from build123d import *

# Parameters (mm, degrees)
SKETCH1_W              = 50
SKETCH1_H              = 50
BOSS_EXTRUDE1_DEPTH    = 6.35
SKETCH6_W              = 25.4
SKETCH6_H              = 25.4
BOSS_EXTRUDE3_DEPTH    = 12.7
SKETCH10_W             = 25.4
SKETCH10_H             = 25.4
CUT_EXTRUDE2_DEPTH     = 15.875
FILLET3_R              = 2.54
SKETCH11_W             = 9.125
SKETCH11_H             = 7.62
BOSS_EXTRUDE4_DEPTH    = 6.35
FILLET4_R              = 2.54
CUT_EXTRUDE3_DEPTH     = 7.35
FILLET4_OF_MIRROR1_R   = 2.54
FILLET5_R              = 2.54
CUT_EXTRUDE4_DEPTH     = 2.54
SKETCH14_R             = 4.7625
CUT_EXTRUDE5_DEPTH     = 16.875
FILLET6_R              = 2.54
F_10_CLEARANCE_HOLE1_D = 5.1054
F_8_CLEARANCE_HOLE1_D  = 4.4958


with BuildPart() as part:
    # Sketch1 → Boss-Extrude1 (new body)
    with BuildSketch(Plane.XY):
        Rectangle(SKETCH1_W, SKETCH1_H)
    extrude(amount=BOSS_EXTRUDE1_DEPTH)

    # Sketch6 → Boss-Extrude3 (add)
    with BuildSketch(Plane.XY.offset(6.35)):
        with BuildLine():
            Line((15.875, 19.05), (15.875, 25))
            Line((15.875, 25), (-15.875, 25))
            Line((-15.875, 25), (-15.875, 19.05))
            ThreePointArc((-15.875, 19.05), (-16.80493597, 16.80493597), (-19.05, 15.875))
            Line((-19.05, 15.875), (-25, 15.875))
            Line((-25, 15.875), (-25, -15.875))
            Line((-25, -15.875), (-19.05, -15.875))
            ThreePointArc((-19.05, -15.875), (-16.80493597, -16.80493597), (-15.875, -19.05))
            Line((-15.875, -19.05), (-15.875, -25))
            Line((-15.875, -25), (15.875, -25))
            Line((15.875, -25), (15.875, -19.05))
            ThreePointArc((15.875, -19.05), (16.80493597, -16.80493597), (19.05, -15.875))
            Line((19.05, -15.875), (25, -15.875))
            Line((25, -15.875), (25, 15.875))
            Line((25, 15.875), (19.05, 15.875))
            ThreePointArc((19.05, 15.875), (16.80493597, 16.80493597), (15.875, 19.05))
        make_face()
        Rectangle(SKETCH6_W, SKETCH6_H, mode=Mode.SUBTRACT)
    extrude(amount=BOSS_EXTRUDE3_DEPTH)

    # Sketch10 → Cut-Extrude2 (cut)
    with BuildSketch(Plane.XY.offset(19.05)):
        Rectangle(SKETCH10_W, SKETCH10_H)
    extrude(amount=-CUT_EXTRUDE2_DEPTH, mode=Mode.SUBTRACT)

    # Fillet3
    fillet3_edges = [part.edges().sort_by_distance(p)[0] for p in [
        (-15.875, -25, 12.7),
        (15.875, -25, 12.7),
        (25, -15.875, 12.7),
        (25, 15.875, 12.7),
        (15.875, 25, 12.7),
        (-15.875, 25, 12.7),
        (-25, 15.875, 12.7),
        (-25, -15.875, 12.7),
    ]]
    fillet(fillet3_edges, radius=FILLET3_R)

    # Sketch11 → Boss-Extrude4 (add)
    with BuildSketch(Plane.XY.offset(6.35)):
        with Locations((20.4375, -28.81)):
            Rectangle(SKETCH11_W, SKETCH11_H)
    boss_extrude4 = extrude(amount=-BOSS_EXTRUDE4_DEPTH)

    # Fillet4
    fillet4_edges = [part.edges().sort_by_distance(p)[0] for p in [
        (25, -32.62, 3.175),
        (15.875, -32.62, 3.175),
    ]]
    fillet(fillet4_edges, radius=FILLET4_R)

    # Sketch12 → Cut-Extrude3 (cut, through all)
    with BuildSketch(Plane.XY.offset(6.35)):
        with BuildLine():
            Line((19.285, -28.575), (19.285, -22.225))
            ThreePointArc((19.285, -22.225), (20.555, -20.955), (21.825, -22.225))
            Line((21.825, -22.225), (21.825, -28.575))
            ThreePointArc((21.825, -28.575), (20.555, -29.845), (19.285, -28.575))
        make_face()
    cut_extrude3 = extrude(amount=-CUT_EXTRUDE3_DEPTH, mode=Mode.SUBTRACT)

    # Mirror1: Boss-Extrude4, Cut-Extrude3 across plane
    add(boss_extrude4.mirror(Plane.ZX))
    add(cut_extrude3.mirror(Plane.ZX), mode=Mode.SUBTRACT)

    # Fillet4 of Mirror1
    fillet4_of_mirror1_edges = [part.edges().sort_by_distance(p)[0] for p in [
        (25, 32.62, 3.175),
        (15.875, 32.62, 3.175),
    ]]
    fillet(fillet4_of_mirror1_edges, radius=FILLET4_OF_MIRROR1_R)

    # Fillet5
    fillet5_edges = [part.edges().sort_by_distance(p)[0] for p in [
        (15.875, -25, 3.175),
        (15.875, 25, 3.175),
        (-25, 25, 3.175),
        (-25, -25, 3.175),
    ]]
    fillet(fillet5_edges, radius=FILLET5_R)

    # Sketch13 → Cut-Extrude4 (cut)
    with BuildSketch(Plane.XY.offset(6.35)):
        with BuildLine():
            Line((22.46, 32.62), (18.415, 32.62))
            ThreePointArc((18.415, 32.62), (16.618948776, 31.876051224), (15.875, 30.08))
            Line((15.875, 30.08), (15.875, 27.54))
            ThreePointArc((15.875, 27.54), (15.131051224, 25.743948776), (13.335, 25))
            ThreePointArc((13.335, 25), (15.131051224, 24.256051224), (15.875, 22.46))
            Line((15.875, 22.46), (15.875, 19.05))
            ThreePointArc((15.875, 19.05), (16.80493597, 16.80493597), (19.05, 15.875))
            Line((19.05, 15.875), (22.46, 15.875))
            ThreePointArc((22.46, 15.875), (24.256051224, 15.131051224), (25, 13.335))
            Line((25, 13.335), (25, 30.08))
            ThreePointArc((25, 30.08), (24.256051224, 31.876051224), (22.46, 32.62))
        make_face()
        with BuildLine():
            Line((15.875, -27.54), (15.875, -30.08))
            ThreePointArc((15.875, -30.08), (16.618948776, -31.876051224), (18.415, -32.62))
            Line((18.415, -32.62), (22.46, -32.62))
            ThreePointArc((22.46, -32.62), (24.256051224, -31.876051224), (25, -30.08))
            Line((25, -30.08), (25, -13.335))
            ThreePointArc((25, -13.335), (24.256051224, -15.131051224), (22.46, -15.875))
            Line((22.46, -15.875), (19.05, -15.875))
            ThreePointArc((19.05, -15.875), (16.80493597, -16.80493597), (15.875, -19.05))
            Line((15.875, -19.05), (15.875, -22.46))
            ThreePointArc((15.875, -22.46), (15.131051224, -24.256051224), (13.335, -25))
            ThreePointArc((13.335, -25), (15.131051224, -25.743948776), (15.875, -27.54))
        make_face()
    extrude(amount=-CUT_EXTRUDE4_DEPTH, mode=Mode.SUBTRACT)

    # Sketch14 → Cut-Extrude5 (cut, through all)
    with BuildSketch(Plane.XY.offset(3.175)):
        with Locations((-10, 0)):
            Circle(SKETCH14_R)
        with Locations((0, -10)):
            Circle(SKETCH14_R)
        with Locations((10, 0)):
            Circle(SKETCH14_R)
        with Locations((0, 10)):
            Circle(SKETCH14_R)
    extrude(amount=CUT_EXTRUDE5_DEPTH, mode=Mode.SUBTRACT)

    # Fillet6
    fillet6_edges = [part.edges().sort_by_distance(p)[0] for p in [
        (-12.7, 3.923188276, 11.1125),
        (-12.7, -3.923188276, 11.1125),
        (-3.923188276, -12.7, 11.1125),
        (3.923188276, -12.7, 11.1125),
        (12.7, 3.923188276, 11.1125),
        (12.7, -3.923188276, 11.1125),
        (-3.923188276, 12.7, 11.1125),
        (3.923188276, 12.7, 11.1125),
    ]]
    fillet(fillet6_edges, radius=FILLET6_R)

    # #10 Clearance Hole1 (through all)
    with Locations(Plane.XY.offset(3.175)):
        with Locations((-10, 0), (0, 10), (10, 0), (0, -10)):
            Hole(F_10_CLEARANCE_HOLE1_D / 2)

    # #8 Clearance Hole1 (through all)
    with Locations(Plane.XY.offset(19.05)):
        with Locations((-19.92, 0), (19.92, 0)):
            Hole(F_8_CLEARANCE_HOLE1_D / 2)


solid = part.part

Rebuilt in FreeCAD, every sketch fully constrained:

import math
import FreeCAD as App
import Part
import Sketcher
Q = App.Units.Quantity


def edges_at(feature, points):
    """Names of the edges that pass closest to the given points."""
    edges = feature.Shape.Edges
    near = lambda p: min(range(len(edges)), key=lambda i: edges[i].distToShape(Part.Vertex(*p))[0])
    return sorted({f"Edge{near(p) + 1}" for p in points})


def add_polygon(sketch, points):
    """Adds a closed chain of lines whose ends are joined by coincident constraints."""
    first, n = sketch.GeometryCount, len(points)
    for a, b in zip(points, points[1:] + points[:1]):
        sketch.addGeometry(Part.LineSegment(App.Vector(*a, 0), App.Vector(*b, 0)), False)
    for i in range(n):
        sketch.addConstraint(Sketcher.Constraint("Coincident", first + i, 2, first + (i + 1) % n, 1))

doc = App.newDocument("Part")
body = doc.addObject("PartDesign::Body", "Body")

# Sketch on XY plane
sketch1 = body.newObject("Sketcher::SketchObject", "Sketch")
sketch1.AttachmentSupport = (doc.getObject("XY_Plane"), [""])
sketch1.MapMode = "FlatFace"
add_polygon(sketch1, [(-25, 25), (-25, -25), (25, -25), (25, 25)])  # lines 0-3
sketch1.addConstraint([
    Sketcher.Constraint("Vertical", 0),
    Sketcher.Constraint("Horizontal", 1),
    Sketcher.Constraint("Vertical", 2),
    Sketcher.Constraint("Horizontal", 3),
    Sketcher.Constraint("Symmetric", 0, 2, 2, 2, -1, 1),
    Sketcher.Constraint("Equal", 3, 0),
    Sketcher.Constraint("DistanceX", 1, 1, 1, 2, Q("50 mm")),
])
pad1 = body.newObject("PartDesign::Pad", "Pad")
pad1.Profile = sketch1
pad1.Length = Q("0.25 in")

# Sketch on XY plane
sketch2 = body.newObject("Sketcher::SketchObject", "Sketch001")
sketch2.AttachmentSupport = (doc.getObject("XY_Plane"), [""])
sketch2.MapMode = "FlatFace"
sketch2.AttachmentOffset = App.Placement(App.Vector(0, 0, 0.25 * 25.4), App.Rotation())
sketch2.addGeometry(Part.LineSegment(App.Vector(15.9, 19.1, 0), App.Vector(15.9, 25, 0)), False)  # 0
sketch2.addGeometry(Part.LineSegment(App.Vector(15.9, 25, 0), App.Vector(-15.9, 25, 0)), False)  # 1
sketch2.addGeometry(Part.LineSegment(App.Vector(-15.9, 25, 0), App.Vector(-15.9, 19.1, 0)), False)  # 2
sketch2.addGeometry(Part.ArcOfCircle(Part.Circle(App.Vector(-19.1, 19.1, 0), App.Vector(0, 0, 1), 3.2), math.radians(-90), math.radians(0)), False)  # 3
sketch2.addGeometry(Part.LineSegment(App.Vector(-19.1, 15.9, 0), App.Vector(-25, 15.9, 0)), False)  # 4
sketch2.addGeometry(Part.LineSegment(App.Vector(-25, 15.9, 0), App.Vector(-25, -15.9, 0)), False)  # 5
sketch2.addGeometry(Part.LineSegment(App.Vector(-25, -15.9, 0), App.Vector(-19.1, -15.9, 0)), False)  # 6
sketch2.addGeometry(Part.ArcOfCircle(Part.Circle(App.Vector(-19.1, -19.1, 0), App.Vector(0, 0, 1), 3.2), math.radians(0), math.radians(90)), False)  # 7
sketch2.addGeometry(Part.LineSegment(App.Vector(-15.9, -19.1, 0), App.Vector(-15.9, -25, 0)), False)  # 8
sketch2.addGeometry(Part.LineSegment(App.Vector(-15.9, -25, 0), App.Vector(15.9, -25, 0)), False)  # 9
sketch2.addGeometry(Part.LineSegment(App.Vector(15.9, -25, 0), App.Vector(15.9, -19.1, 0)), False)  # 10
sketch2.addGeometry(Part.ArcOfCircle(Part.Circle(App.Vector(19.1, -19.1, 0), App.Vector(0, 0, 1), 3.2), math.radians(90), math.radians(180)), False)  # 11
sketch2.addGeometry(Part.LineSegment(App.Vector(19.1, -15.9, 0), App.Vector(25, -15.9, 0)), False)  # 12
sketch2.addGeometry(Part.LineSegment(App.Vector(25, -15.9, 0), App.Vector(25, 15.9, 0)), False)  # 13
sketch2.addGeometry(Part.LineSegment(App.Vector(25, 15.9, 0), App.Vector(19.1, 15.9, 0)), False)  # 14
sketch2.addGeometry(Part.ArcOfCircle(Part.Circle(App.Vector(19.1, 19.1, 0), App.Vector(0, 0, 1), 3.2), math.radians(-180), math.radians(-90)), False)  # 15
add_polygon(sketch2, [(12.7, -12.7), (-12.7, -12.7), (-12.7, 12.7), (12.7, 12.7)])  # lines 16-19
sketch2.addConstraint([
    Sketcher.Constraint("Coincident", 0, 2, 1, 1),
    Sketcher.Constraint("Coincident", 1, 2, 2, 1),
    Sketcher.Constraint("Tangent", 2, 2, 3, 2),
    Sketcher.Constraint("Tangent", 3, 1, 4, 1),
    Sketcher.Constraint("Coincident", 4, 2, 5, 1),
    Sketcher.Constraint("Coincident", 5, 2, 6, 1),
    Sketcher.Constraint("Tangent", 6, 2, 7, 2),
    Sketcher.Constraint("Tangent", 7, 1, 8, 1),
    Sketcher.Constraint("Coincident", 8, 2, 9, 1),
    Sketcher.Constraint("Coincident", 9, 2, 10, 1),
    Sketcher.Constraint("Tangent", 10, 2, 11, 2),
    Sketcher.Constraint("Tangent", 11, 1, 12, 1),
    Sketcher.Constraint("Coincident", 12, 2, 13, 1),
    Sketcher.Constraint("Coincident", 13, 2, 14, 1),
    Sketcher.Constraint("Tangent", 14, 2, 15, 2),
    Sketcher.Constraint("Tangent", 15, 1, 0, 1),
    Sketcher.Constraint("Vertical", 0),
    Sketcher.Constraint("Horizontal", 1),
    Sketcher.Constraint("Vertical", 2),
    Sketcher.Constraint("Horizontal", 4),
    Sketcher.Constraint("Vertical", 5),
    Sketcher.Constraint("Horizontal", 6),
    Sketcher.Constraint("Vertical", 8),
    Sketcher.Constraint("Horizontal", 9),
    Sketcher.Constraint("Vertical", 10),
    Sketcher.Constraint("Horizontal", 12),
    Sketcher.Constraint("Vertical", 13),
    Sketcher.Constraint("Horizontal", 14),
    Sketcher.Constraint("Horizontal", 16),
    Sketcher.Constraint("Vertical", 17),
    Sketcher.Constraint("Horizontal", 18),
    Sketcher.Constraint("Vertical", 19),
    Sketcher.Constraint("Equal", 3, 7),
    Sketcher.Constraint("Equal", 7, 11),
    Sketcher.Constraint("Equal", 11, 15),
    Sketcher.Constraint("Symmetric", 3, 3, 11, 3, -1, 1),
    Sketcher.Constraint("Symmetric", 7, 3, 15, 3, -1, 1),
    Sketcher.Constraint("Symmetric", 16, 2, 18, 2, -1, 1),
    Sketcher.Constraint("Symmetric", 7, 3, 11, 3, -2),
    Sketcher.Constraint("Equal", 6, 12),
    Sketcher.Constraint("Equal", 14, 0),
    Sketcher.Constraint("Equal", 9, 5),
    Sketcher.Constraint("Equal", 2, 8),
    Sketcher.Constraint("Equal", 18, 17),
    Sketcher.Constraint("DistanceX", 16, 2, 16, 1, Q("1 in")),
    Sketcher.Constraint("Radius", 3, Q("0.125 in")),
    Sketcher.Constraint("DistanceX", 1, 2, 1, 1, Q("1.25 in")),
    Sketcher.Constraint("DistanceX", 4, 2, 4, 1, Q("5.95 mm")),
])
pad2 = body.newObject("PartDesign::Pad", "Pad001")
pad2.Profile = sketch2
pad2.Length = Q("0.5 in")

# Sketch on XY plane
sketch3 = body.newObject("Sketcher::SketchObject", "Sketch002")
sketch3.AttachmentSupport = (doc.getObject("XY_Plane"), [""])
sketch3.MapMode = "FlatFace"
sketch3.AttachmentOffset = App.Placement(App.Vector(0, 0, 0.75 * 25.4), App.Rotation())
add_polygon(sketch3, [(-13, 13), (-13, -13), (13, -13), (13, 13)])  # lines 0-3
sketch3.addConstraint([
    Sketcher.Constraint("Vertical", 0),
    Sketcher.Constraint("Horizontal", 1),
    Sketcher.Constraint("Vertical", 2),
    Sketcher.Constraint("Horizontal", 3),
    Sketcher.Constraint("Symmetric", 0, 2, 2, 2, -1, 1),
    Sketcher.Constraint("Equal", 3, 0),
    Sketcher.Constraint("DistanceX", 1, 1, 1, 2, Q("1 in")),
])
pocket1 = body.newObject("PartDesign::Pocket", "Pocket")
pocket1.Profile = sketch3
pocket1.Length = Q("0.625 in")
doc.recompute()

fillet = body.newObject("PartDesign::Fillet", "Fillet")
fillet.Base = (pocket1, edges_at(pocket1, [
    (-15.875, -25, 12.7),
    (15.875, -25, 12.7),
    (25, -15.875, 12.7),
    (25, 15.875, 12.7),
    (15.875, 25, 12.7),
    (-15.875, 25, 12.7),
    (-25, 15.875, 12.7),
    (-25, -15.875, 12.7),
]))
fillet.Radius = Q("0.1 in")

# Sketch on XY plane
sketch4 = body.newObject("Sketcher::SketchObject", "Sketch003")
sketch4.AttachmentSupport = (doc.getObject("XY_Plane"), [""])
sketch4.MapMode = "FlatFace"
sketch4.AttachmentOffset = App.Placement(App.Vector(0, 0, 0.25 * 25.4), App.Rotation())
add_polygon(sketch4, [(16, -25), (16, -33), (25, -33), (25, -25)])  # lines 0-3
sketch4.addConstraint([
    Sketcher.Constraint("Vertical", 0),
    Sketcher.Constraint("Horizontal", 1),
    Sketcher.Constraint("Vertical", 2),
    Sketcher.Constraint("Horizontal", 3),
    Sketcher.Constraint("DistanceY", 0, 2, 0, 1, Q("0.3 in")),
    Sketcher.Constraint("DistanceX", -1, 1, 0, 2, Q("0.625 in")),
    Sketcher.Constraint("DistanceX", 1, 1, 1, 2, Q("9.125 mm")),
    Sketcher.Constraint("DistanceY", 0, 2, -1, 1, Q("32.62 mm")),
])
pad3 = body.newObject("PartDesign::Pad", "Pad002")
pad3.Profile = sketch4
pad3.Length = Q("0.25 in")
pad3.Reversed = True
doc.recompute()

fillet2 = body.newObject("PartDesign::Fillet", "Fillet001")
fillet2.Base = (pad3, edges_at(pad3, [(25, -32.62, 3.175), (15.875, -32.62, 3.175)]))
fillet2.Radius = Q("0.1 in")

# Sketch on XY plane
sketch5 = body.newObject("Sketcher::SketchObject", "Sketch004")
sketch5.AttachmentSupport = (doc.getObject("XY_Plane"), [""])
sketch5.MapMode = "FlatFace"
sketch5.AttachmentOffset = App.Placement(App.Vector(0, 0, 0.25 * 25.4), App.Rotation())
sketch5.addGeometry([
    Part.LineSegment(App.Vector(19.3, -22.2, 0), App.Vector(19.3, -28.6, 0)),
    Part.ArcOfCircle(Part.Circle(App.Vector(20.6, -28.6, 0), App.Vector(0, 0, 1), 1.3), math.radians(180), math.radians(360)),
    Part.LineSegment(App.Vector(21.8, -28.6, 0), App.Vector(21.8, -22.2, 0)),
    Part.ArcOfCircle(Part.Circle(App.Vector(20.6, -22.2, 0), App.Vector(0, 0, 1), 1.3), math.radians(0), math.radians(180)),
], False)
sketch5.addConstraint([
    Sketcher.Constraint("Tangent", 0, 2, 1, 1),
    Sketcher.Constraint("Tangent", 1, 2, 2, 1),
    Sketcher.Constraint("Tangent", 2, 2, 3, 1),
    Sketcher.Constraint("Tangent", 3, 2, 0, 1),
    Sketcher.Constraint("Vertical", 0),
    Sketcher.Constraint("Vertical", 2),
    Sketcher.Constraint("Radius", 1, Q("0.05 in")),
    Sketcher.Constraint("DistanceY", 0, 2, 0, 1, Q("0.25 in")),
    Sketcher.Constraint("DistanceY", 1, 3, -1, 1, Q("1.125 in")),
    Sketcher.Constraint("DistanceX", -1, 1, 1, 3, Q("20.555 mm")),
])
pocket2 = body.newObject("PartDesign::Pocket", "Pocket001")
pocket2.Profile = sketch5
pocket2.Type = "ThroughAll"
doc.recompute()

mirrored = body.newObject("PartDesign::Mirrored", "Mirrored")
mirrored.Originals = [pad3, pocket2]
mirrored.MirrorPlane = (doc.getObject("XZ_Plane"), [""])
body.Tip = mirrored
doc.recompute()

fillet3 = body.newObject("PartDesign::Fillet", "Fillet002")
fillet3.Base = (mirrored, edges_at(mirrored, [(25, 32.62, 3.175), (15.875, 32.62, 3.175)]))
fillet3.Radius = Q("0.1 in")
doc.recompute()

fillet4 = body.newObject("PartDesign::Fillet", "Fillet003")
fillet4.Base = (fillet3, edges_at(fillet3, [
    (15.875, -25, 3.175),
    (15.875, 25, 3.175),
    (-25, 25, 3.175),
    (-25, -25, 3.175),
]))
fillet4.Radius = Q("0.1 in")

# Sketch on XY plane
sketch6 = body.newObject("Sketcher::SketchObject", "Sketch005")
sketch6.AttachmentSupport = (doc.getObject("XY_Plane"), [""])
sketch6.MapMode = "FlatFace"
sketch6.AttachmentOffset = App.Placement(App.Vector(0, 0, 0.25 * 25.4), App.Rotation())
sketch6.addGeometry([
    Part.LineSegment(App.Vector(22.5, 32.6, 0), App.Vector(18.4, 32.6, 0)),  # 0
    Part.ArcOfCircle(Part.Circle(App.Vector(18.4, 30.1, 0), App.Vector(0, 0, 1), 2.5), math.radians(90), math.radians(180)),  # 1
    Part.LineSegment(App.Vector(15.9, 30.1, 0), App.Vector(15.9, 27.5, 0)),  # 2
    Part.ArcOfCircle(Part.Circle(App.Vector(13.3, 27.5, 0), App.Vector(0, 0, 1), 2.5), math.radians(-90), math.radians(0)),  # 3
    Part.ArcOfCircle(Part.Circle(App.Vector(13.3, 22.5, 0), App.Vector(0, 0, 1), 2.5), math.radians(0), math.radians(90)),  # 4
    Part.LineSegment(App.Vector(15.9, 22.5, 0), App.Vector(15.9, 19.1, 0)),  # 5
    Part.ArcOfCircle(Part.Circle(App.Vector(19.1, 19.1, 0), App.Vector(0, 0, 1), 3.2), math.radians(-180), math.radians(-90)),  # 6
    Part.LineSegment(App.Vector(19.1, 15.9, 0), App.Vector(22.5, 15.9, 0)),  # 7
    Part.ArcOfCircle(Part.Circle(App.Vector(22.5, 13.3, 0), App.Vector(0, 0, 1), 2.5), math.radians(0), math.radians(90)),  # 8
    Part.LineSegment(App.Vector(25, 13.3, 0), App.Vector(25, 30.1, 0)),  # 9
    Part.ArcOfCircle(Part.Circle(App.Vector(22.5, 30.1, 0), App.Vector(0, 0, 1), 2.5), math.radians(0), math.radians(90)),  # 10
    Part.LineSegment(App.Vector(15.9, -27.5, 0), App.Vector(15.9, -30.1, 0)),  # 11
    Part.ArcOfCircle(Part.Circle(App.Vector(18.4, -30.1, 0), App.Vector(0, 0, 1), 2.5), math.radians(-180), math.radians(-90)),  # 12
    Part.LineSegment(App.Vector(18.4, -32.6, 0), App.Vector(22.5, -32.6, 0)),  # 13
    Part.ArcOfCircle(Part.Circle(App.Vector(22.5, -30.1, 0), App.Vector(0, 0, 1), 2.5), math.radians(-90), math.radians(0)),  # 14
    Part.LineSegment(App.Vector(25, -30.1, 0), App.Vector(25, -13.3, 0)),  # 15
    Part.ArcOfCircle(Part.Circle(App.Vector(22.5, -13.3, 0), App.Vector(0, 0, 1), 2.5), math.radians(-90), math.radians(0)),  # 16
    Part.LineSegment(App.Vector(22.5, -15.9, 0), App.Vector(19.1, -15.9, 0)),  # 17
    Part.ArcOfCircle(Part.Circle(App.Vector(19.1, -19.1, 0), App.Vector(0, 0, 1), 3.2), math.radians(90), math.radians(180)),  # 18
    Part.LineSegment(App.Vector(15.9, -19.1, 0), App.Vector(15.9, -22.5, 0)),  # 19
    Part.ArcOfCircle(Part.Circle(App.Vector(13.3, -22.5, 0), App.Vector(0, 0, 1), 2.5), math.radians(-90), math.radians(0)),  # 20
    Part.ArcOfCircle(Part.Circle(App.Vector(13.3, -27.5, 0), App.Vector(0, 0, 1), 2.5), math.radians(0), math.radians(90)),  # 21
], False)
sketch6.addConstraint([
    Sketcher.Constraint("Tangent", 0, 2, 1, 1),
    Sketcher.Constraint("Tangent", 1, 2, 2, 1),
    Sketcher.Constraint("Tangent", 2, 2, 3, 2),
    Sketcher.Constraint("Tangent", 3, 1, 4, 2),
    Sketcher.Constraint("Tangent", 4, 1, 5, 1),
    Sketcher.Constraint("Tangent", 5, 2, 6, 1),
    Sketcher.Constraint("Tangent", 6, 2, 7, 1),
    Sketcher.Constraint("Tangent", 7, 2, 8, 2),
    Sketcher.Constraint("Tangent", 8, 1, 9, 1),
    Sketcher.Constraint("Tangent", 9, 2, 10, 1),
    Sketcher.Constraint("Tangent", 10, 2, 0, 1),
    Sketcher.Constraint("Tangent", 11, 2, 12, 1),
    Sketcher.Constraint("Tangent", 12, 2, 13, 1),
    Sketcher.Constraint("Tangent", 13, 2, 14, 1),
    Sketcher.Constraint("Tangent", 14, 2, 15, 1),
    Sketcher.Constraint("Tangent", 15, 2, 16, 2),
    Sketcher.Constraint("Tangent", 16, 1, 17, 1),
    Sketcher.Constraint("Tangent", 17, 2, 18, 1),
    Sketcher.Constraint("Tangent", 18, 2, 19, 1),
    Sketcher.Constraint("Tangent", 19, 2, 20, 2),
    Sketcher.Constraint("Tangent", 20, 1, 21, 2),
    Sketcher.Constraint("Tangent", 21, 1, 11, 1),
    Sketcher.Constraint("Horizontal", 0),
    Sketcher.Constraint("Vertical", 2),
    Sketcher.Constraint("Vertical", 5),
    Sketcher.Constraint("Horizontal", 7),
    Sketcher.Constraint("Vertical", 9),
    Sketcher.Constraint("Vertical", 11),
    Sketcher.Constraint("Horizontal", 13),
    Sketcher.Constraint("Vertical", 15),
    Sketcher.Constraint("Horizontal", 17),
    Sketcher.Constraint("Vertical", 19),
    Sketcher.Constraint("Equal", 1, 3),
    Sketcher.Constraint("Equal", 3, 4),
    Sketcher.Constraint("Equal", 4, 8),
    Sketcher.Constraint("Equal", 8, 10),
    Sketcher.Constraint("Equal", 10, 12),
    Sketcher.Constraint("Equal", 12, 14),
    Sketcher.Constraint("Equal", 14, 16),
    Sketcher.Constraint("Equal", 6, 18),
    Sketcher.Constraint("Equal", 16, 20),
    Sketcher.Constraint("Equal", 20, 21),
    Sketcher.Constraint("Symmetric", 1, 3, 12, 3, -1),
    Sketcher.Constraint("Symmetric", 8, 3, 16, 3, -1),
    Sketcher.Constraint("Symmetric", 4, 3, 20, 3, -1),
    Sketcher.Constraint("Vertical", 3, 3, 4, 3),
    Sketcher.Constraint("Equal", 17, 5),
    Sketcher.Constraint("Radius", 1, Q("0.1 in")),
    Sketcher.Constraint("DistanceY", 2, 2, 2, 1, Q("0.1 in")),
    Sketcher.Constraint("Radius", 6, Q("0.125 in")),
    Sketcher.Constraint("DistanceY", 18, 3, 6, 3, Q("1.5 in")),
    Sketcher.Constraint("DistanceX", -1, 1, 6, 3, Q("0.75 in")),
    Sketcher.Constraint("DistanceX", 0, 2, 0, 1, Q("4.045 mm")),
])
pocket3 = body.newObject("PartDesign::Pocket", "Pocket002")
pocket3.Profile = sketch6
pocket3.Length = Q("0.1 in")

# Sketch on XY plane
sketch7 = body.newObject("Sketcher::SketchObject", "Sketch006")
sketch7.AttachmentSupport = (doc.getObject("XY_Plane"), [""])
sketch7.MapMode = "FlatFace"
sketch7.AttachmentOffset = App.Placement(App.Vector(0, 0, 0.125 * 25.4), App.Rotation())
sketch7.addGeometry([
    Part.Circle(App.Vector(-10, 0, 0), App.Vector(0, 0, 1), 4.8),
    Part.Circle(App.Vector(0, -10, 0), App.Vector(0, 0, 1), 4.8),
    Part.Circle(App.Vector(10, 0, 0), App.Vector(0, 0, 1), 4.8),
    Part.Circle(App.Vector(0, 10, 0), App.Vector(0, 0, 1), 4.8),
], False)
sketch7.addConstraint([
    Sketcher.Constraint("Equal", 0, 1),
    Sketcher.Constraint("Equal", 1, 2),
    Sketcher.Constraint("Equal", 2, 3),
    Sketcher.Constraint("Symmetric", 0, 3, 2, 3, -1, 1),
    Sketcher.Constraint("Symmetric", 1, 3, 3, 3, -1, 1),
    Sketcher.Constraint("PointOnObject", 0, 3, -1),
    Sketcher.Constraint("PointOnObject", 1, 3, -2),
    Sketcher.Constraint("Diameter", 0, Q("0.375 in")),
    Sketcher.Constraint("DistanceX", 0, 3, -1, 1, Q("10 mm")),
    Sketcher.Constraint("DistanceY", 1, 3, -1, 1, Q("10 mm")),
])
pocket4 = body.newObject("PartDesign::Pocket", "Pocket003")
pocket4.Profile = sketch7
pocket4.Type = "ThroughAll"
pocket4.Reversed = True
doc.recompute()

fillet5 = body.newObject("PartDesign::Fillet", "Fillet004")
fillet5.Base = (pocket4, edges_at(pocket4, [
    (-12.7, 3.923, 11.113),
    (-12.7, -3.923, 11.113),
    (-3.923, -12.7, 11.113),
    (3.923, -12.7, 11.113),
    (12.7, 3.923, 11.113),
    (12.7, -3.923, 11.113),
    (-3.923, 12.7, 11.113),
    (3.923, 12.7, 11.113),
]))
fillet5.Radius = Q("0.1 in")

# Sketch on XY plane
sketch8 = body.newObject("Sketcher::SketchObject", "Sketch007")
sketch8.AttachmentSupport = (doc.getObject("XY_Plane"), [""])
sketch8.MapMode = "FlatFace"
sketch8.AttachmentOffset = App.Placement(App.Vector(0, 0, 0.125 * 25.4), App.Rotation())
sketch8.addGeometry([
    Part.Circle(App.Vector(-10, 0, 0), App.Vector(0, 0, 1), 2.6),
    Part.Circle(App.Vector(0, 10, 0), App.Vector(0, 0, 1), 2.6),
    Part.Circle(App.Vector(10, 0, 0), App.Vector(0, 0, 1), 2.6),
    Part.Circle(App.Vector(0, -10, 0), App.Vector(0, 0, 1), 2.6),
], False)
sketch8.addConstraint([
    Sketcher.Constraint("Equal", 0, 1),
    Sketcher.Constraint("Equal", 1, 2),
    Sketcher.Constraint("Equal", 2, 3),
    Sketcher.Constraint("Symmetric", 0, 3, 2, 3, -1, 1),
    Sketcher.Constraint("Symmetric", 1, 3, 3, 3, -1, 1),
    Sketcher.Constraint("PointOnObject", 0, 3, -1),
    Sketcher.Constraint("PointOnObject", 1, 3, -2),
    Sketcher.Constraint("Diameter", 0, Q("0.201 in")),
    Sketcher.Constraint("DistanceX", 0, 3, -1, 1, Q("10 mm")),
    Sketcher.Constraint("DistanceY", -1, 1, 1, 3, Q("10 mm")),
])
doc.recompute()
hole = body.newObject("PartDesign::Hole", "Hole")
hole.Profile = sketch8
hole.ThreadType = "None"
hole.Diameter = Q("0.201 in")
hole.DepthType = "ThroughAll"

# Sketch on XY plane
sketch9 = body.newObject("Sketcher::SketchObject", "Sketch008")
sketch9.AttachmentSupport = (doc.getObject("XY_Plane"), [""])
sketch9.MapMode = "FlatFace"
sketch9.AttachmentOffset = App.Placement(App.Vector(0, 0, 0.75 * 25.4), App.Rotation())
sketch9.addGeometry([
    Part.Circle(App.Vector(-19.9, 0, 0), App.Vector(0, 0, 1), 2.2),
    Part.Circle(App.Vector(19.9, 0, 0), App.Vector(0, 0, 1), 2.2),
], False)
sketch9.addConstraint([
    Sketcher.Constraint("Equal", 0, 1),
    Sketcher.Constraint("Symmetric", 0, 3, 1, 3, -1, 1),
    Sketcher.Constraint("PointOnObject", 0, 3, -1),
    Sketcher.Constraint("Diameter", 0, Q("0.177 in")),
    Sketcher.Constraint("DistanceX", 0, 3, -1, 1, Q("19.92 mm")),
])
doc.recompute()
hole2 = body.newObject("PartDesign::Hole", "Hole001")
hole2.Profile = sketch9
hole2.ThreadType = "None"
hole2.Diameter = Q("0.177 in")
hole2.DepthType = "ThroughAll"

doc.recompute()
